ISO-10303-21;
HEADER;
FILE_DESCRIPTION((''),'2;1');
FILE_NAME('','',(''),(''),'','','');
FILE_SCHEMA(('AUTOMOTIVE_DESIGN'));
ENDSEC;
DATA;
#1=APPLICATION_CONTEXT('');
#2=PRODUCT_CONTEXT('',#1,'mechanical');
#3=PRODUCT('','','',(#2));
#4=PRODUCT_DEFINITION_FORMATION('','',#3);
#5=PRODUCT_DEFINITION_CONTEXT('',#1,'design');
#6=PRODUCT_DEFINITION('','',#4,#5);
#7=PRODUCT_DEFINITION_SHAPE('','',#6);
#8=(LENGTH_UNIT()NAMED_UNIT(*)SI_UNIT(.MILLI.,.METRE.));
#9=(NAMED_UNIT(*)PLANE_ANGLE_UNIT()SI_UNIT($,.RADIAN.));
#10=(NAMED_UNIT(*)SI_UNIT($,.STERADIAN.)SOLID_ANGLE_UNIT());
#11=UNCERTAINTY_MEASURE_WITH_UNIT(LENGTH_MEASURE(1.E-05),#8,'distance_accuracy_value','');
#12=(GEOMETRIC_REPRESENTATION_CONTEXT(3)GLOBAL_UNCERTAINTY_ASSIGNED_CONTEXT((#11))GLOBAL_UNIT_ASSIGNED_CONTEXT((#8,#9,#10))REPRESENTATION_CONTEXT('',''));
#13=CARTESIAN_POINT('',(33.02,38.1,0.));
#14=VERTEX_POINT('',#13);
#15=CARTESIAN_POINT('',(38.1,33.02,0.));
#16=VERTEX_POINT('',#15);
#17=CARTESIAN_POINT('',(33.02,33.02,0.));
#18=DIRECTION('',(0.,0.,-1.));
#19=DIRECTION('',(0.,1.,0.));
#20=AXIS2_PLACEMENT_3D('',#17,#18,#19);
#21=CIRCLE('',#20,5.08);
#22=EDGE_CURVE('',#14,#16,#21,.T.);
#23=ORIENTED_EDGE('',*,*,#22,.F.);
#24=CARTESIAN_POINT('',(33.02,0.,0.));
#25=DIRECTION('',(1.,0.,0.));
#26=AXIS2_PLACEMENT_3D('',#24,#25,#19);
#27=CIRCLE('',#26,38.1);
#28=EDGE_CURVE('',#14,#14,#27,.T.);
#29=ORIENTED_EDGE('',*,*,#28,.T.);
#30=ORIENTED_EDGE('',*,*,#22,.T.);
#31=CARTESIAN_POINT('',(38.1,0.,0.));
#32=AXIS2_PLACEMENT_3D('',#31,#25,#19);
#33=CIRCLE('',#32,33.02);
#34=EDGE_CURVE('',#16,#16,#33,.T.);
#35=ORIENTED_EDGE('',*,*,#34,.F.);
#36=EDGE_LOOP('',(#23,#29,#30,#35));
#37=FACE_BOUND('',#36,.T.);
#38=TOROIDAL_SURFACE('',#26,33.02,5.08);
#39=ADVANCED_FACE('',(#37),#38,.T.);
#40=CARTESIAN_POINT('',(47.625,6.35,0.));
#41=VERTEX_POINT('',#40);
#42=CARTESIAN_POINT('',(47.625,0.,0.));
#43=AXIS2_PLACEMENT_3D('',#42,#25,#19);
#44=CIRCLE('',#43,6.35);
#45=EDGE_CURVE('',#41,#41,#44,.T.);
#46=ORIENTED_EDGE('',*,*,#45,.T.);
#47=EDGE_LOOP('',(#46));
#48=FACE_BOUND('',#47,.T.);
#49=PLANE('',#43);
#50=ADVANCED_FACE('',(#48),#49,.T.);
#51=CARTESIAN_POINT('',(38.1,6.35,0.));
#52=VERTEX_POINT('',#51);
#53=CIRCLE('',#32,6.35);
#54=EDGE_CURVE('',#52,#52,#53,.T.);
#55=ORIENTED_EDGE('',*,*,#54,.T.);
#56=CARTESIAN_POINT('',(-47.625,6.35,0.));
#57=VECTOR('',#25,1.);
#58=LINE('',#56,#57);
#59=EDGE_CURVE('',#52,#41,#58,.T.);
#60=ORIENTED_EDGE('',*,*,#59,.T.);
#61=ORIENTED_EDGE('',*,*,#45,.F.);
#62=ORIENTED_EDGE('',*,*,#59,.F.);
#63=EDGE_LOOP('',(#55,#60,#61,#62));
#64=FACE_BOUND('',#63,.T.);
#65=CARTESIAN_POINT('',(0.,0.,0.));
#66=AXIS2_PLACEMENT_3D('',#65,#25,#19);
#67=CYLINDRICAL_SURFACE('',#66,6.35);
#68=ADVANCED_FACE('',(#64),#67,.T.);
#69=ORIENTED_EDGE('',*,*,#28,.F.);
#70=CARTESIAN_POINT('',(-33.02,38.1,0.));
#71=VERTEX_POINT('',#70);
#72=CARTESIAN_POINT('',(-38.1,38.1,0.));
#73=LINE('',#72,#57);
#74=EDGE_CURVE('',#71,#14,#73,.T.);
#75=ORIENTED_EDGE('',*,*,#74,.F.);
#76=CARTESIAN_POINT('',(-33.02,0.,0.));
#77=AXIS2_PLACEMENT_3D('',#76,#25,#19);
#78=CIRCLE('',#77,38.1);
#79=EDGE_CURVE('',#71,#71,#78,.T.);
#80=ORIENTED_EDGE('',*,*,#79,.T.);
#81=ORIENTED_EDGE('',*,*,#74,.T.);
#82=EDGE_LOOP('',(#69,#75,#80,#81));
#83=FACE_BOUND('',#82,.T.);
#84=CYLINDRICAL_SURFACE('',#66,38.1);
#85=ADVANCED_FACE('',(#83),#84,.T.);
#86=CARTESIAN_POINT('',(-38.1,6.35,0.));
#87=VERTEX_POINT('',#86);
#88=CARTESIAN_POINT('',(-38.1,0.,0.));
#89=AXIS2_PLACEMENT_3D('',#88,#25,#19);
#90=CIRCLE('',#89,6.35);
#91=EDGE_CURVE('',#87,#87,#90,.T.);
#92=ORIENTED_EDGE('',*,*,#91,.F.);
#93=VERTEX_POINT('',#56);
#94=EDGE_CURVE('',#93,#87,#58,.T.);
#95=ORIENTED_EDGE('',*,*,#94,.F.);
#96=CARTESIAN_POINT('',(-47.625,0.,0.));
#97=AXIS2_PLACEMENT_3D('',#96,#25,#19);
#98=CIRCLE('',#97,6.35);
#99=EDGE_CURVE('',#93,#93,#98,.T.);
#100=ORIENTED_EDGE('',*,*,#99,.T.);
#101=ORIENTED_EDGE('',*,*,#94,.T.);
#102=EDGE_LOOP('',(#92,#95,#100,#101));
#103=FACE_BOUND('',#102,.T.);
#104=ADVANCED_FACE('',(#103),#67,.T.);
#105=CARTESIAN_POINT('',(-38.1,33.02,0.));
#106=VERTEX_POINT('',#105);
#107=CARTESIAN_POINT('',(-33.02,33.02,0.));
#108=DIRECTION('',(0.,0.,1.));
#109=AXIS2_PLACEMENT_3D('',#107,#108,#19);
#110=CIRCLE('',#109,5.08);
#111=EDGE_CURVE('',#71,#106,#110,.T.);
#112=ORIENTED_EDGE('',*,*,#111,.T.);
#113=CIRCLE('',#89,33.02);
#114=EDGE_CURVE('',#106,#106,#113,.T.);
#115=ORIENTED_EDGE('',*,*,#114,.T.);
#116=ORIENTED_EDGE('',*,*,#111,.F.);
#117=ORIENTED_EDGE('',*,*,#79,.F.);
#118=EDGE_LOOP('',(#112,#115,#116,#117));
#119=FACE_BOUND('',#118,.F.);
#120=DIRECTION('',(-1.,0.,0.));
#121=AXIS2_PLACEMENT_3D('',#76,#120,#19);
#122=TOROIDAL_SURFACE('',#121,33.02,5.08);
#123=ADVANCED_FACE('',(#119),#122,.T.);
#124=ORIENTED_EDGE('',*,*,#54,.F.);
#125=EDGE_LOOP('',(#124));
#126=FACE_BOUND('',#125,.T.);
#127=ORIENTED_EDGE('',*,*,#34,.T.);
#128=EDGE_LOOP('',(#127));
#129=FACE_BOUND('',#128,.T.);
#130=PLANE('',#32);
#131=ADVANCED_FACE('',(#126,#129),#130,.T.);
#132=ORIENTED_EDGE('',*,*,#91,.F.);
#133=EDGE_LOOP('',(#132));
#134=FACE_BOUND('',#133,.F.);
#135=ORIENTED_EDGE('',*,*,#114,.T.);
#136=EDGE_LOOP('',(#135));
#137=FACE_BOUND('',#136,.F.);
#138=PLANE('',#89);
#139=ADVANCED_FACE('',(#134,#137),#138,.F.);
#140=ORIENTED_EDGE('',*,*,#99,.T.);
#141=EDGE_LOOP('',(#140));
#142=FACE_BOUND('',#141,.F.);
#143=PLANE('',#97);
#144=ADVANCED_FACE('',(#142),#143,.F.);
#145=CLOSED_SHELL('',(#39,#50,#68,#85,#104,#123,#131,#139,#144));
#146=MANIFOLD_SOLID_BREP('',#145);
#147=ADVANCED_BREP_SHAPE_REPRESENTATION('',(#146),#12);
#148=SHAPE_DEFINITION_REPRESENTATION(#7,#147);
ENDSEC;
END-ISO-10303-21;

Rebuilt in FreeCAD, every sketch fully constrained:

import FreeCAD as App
import Part
import Sketcher

V = App.Vector
Q = App.Units.Quantity


def edges_at(feature, points):
    """Names of the edges that pass closest to the given points."""
    edges = feature.Shape.Edges
    near = lambda p: min(range(len(edges)), key=lambda i: edges[i].distToShape(Part.Vertex(*p))[0])
    return sorted({f"Edge{near(p) + 1}" for p in points})

doc = App.newDocument("Part")
body = doc.addObject("PartDesign::Body", "Body")

sketch1 = doc.addObject("Sketcher::SketchObject", "Sketch")
body.addObject(sketch1)
sketch1.AttachmentSupport = (doc.YZ_Plane, [""])
sketch1.MapMode = "FlatFace"
sketch1.addGeometry([
    Part.Circle(V(0, 0, 0), V(0, 0, 1), 38.1),
    Part.Circle(V(0, 0, 0), V(0, 0, 1), 6.35),
], False)
sketch1.addConstraint([
    Sketcher.Constraint("Coincident", 0, 3, -1, 1),
    Sketcher.Constraint("Coincident", 1, 3, -1, 1),
    Sketcher.Constraint("Diameter", 0, Q("3 in")),
    Sketcher.Constraint("Diameter", 1, Q("0.5 in")),
])
pad1 = doc.addObject("PartDesign::Pad", "Pad")
body.addObject(pad1)
pad1.Profile = sketch1
pad1.Length = Q("3 in")
pad1.Midplane = True
doc.recompute()

fillet = doc.addObject("PartDesign::Fillet", "Fillet")
body.addObject(fillet)
fillet.Base = (pad1, edges_at(pad1, [(38.1, -38.1, 0), (-38.1, -38.1, 0)]))
fillet.Radius = Q("0.2 in")

sketch2 = doc.addObject("Sketcher::SketchObject", "Sketch001")
body.addObject(sketch2)
sketch2.AttachmentSupport = (doc.YZ_Plane, [""])
sketch2.MapMode = "FlatFace"
sketch2.addGeometry(Part.Circle(V(0, 0, 0), V(0, 0, 1), 6.35), False)
sketch2.addConstraint([
    Sketcher.Constraint("Coincident", 0, 3, -1, 1),
    Sketcher.Constraint("Diameter", 0, Q("0.5 in")),
])
pad2 = doc.addObject("PartDesign::Pad", "Pad001")
body.addObject(pad2)
pad2.Profile = sketch2
pad2.Length = Q("3.75 in")
pad2.Midplane = True

doc.recompute()
